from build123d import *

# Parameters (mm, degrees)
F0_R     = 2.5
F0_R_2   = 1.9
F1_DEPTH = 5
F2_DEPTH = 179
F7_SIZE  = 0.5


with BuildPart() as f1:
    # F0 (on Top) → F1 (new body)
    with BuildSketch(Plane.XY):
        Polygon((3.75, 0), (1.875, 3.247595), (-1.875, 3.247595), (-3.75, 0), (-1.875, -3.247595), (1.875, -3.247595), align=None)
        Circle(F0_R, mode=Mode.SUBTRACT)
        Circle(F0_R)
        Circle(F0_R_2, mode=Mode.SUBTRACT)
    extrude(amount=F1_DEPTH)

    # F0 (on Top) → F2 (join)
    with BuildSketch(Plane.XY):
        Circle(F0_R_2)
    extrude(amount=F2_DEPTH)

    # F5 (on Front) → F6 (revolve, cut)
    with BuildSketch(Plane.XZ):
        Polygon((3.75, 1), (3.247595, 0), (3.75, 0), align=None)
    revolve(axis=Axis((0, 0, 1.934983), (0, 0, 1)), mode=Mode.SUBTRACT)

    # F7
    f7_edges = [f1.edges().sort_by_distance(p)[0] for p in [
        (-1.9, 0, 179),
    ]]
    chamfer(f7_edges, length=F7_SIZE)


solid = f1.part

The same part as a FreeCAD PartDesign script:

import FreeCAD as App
import Part
import Sketcher

V = App.Vector
Q = App.Units.Quantity


def edges_at(feature, points):
    """Names of the edges that pass closest to the given points."""
    edges = feature.Shape.Edges
    near = lambda p: min(range(len(edges)), key=lambda i: edges[i].distToShape(Part.Vertex(*p))[0])
    return sorted({f"Edge{near(p) + 1}" for p in points})


def add_polygon(sketch, points):
    """Adds a closed chain of lines whose ends are joined by coincident constraints."""
    first, n = sketch.GeometryCount, len(points)
    for a, b in zip(points, points[1:] + points[:1]):
        sketch.addGeometry(Part.LineSegment(App.Vector(*a, 0), App.Vector(*b, 0)), False)
    for i in range(n):
        sketch.addConstraint(Sketcher.Constraint("Coincident", first + i, 2, first + (i + 1) % n, 1))

doc = App.newDocument("Part")
body = doc.addObject("PartDesign::Body", "Body")

# Sketch on XY plane
sketch1 = doc.addObject("Sketcher::SketchObject", "Sketch")
body.addObject(sketch1)
sketch1.AttachmentSupport = (doc.XY_Plane, [""])
sketch1.MapMode = "FlatFace"
add_polygon(sketch1, [(3.8, 0), (1.9, 3.2), (-1.9, 3.2), (-3.8, 0), (-1.9, -3.2), (1.9, -3.2)])  # lines 0-5
sketch1.addGeometry(Part.Circle(V(0, 0, 0), V(0, 0, 1), 1.9), False)  # 6
sketch1.addConstraint([
    Sketcher.Constraint("Horizontal", 1),
    Sketcher.Constraint("Horizontal", 4),
    Sketcher.Constraint("Coincident", 6, 3, -1, 1),
    Sketcher.Constraint("Symmetric", 0, 2, 3, 2, -1, 1),
    Sketcher.Constraint("Symmetric", 2, 2, 5, 2, -1, 1),
    Sketcher.Constraint("PointOnObject", 2, 2, -1),
    Sketcher.Constraint("Parallel", 2, 5),
    Sketcher.Constraint("Vertical", 1, 2, 3, 2),
    Sketcher.Constraint("Diameter", 6, Q("3.8 mm")),
    Sketcher.Constraint("Angle", 0, Q("120.000002 deg")),
    Sketcher.Constraint("DistanceX", 1, 2, 1, 1, Q("3.75 mm")),
    Sketcher.Constraint("Distance", 0, Q("3.75 mm")),
])
pad1 = doc.addObject("PartDesign::Pad", "Pad")
body.addObject(pad1)
pad1.Profile = sketch1
pad1.Length = 5

# Sketch on XY plane
sketch2 = doc.addObject("Sketcher::SketchObject", "Sketch001")
body.addObject(sketch2)
sketch2.AttachmentSupport = (doc.XY_Plane, [""])
sketch2.MapMode = "FlatFace"
sketch2.addGeometry(Part.Circle(V(0, 0, 0), V(0, 0, 1), 1.9), False)
sketch2.addConstraint([
    Sketcher.Constraint("Coincident", 0, 3, -1, 1),
    Sketcher.Constraint("Diameter", 0, Q("3.8 mm")),
])
pad2 = doc.addObject("PartDesign::Pad", "Pad001")
body.addObject(pad2)
pad2.Profile = sketch2
pad2.Length = 179

# Sketch on XZ plane
sketch3 = doc.addObject("Sketcher::SketchObject", "Sketch002")
body.addObject(sketch3)
sketch3.AttachmentSupport = (doc.XZ_Plane, [""])
sketch3.MapMode = "FlatFace"
add_polygon(sketch3, [(3.8, 1), (3.2, 0), (3.8, 0)])  # lines 0-2
sketch3.addConstraint([
    Sketcher.Constraint("Horizontal", 1),
    Sketcher.Constraint("Vertical", 2),
    Sketcher.Constraint("PointOnObject", 0, 2, -1),
    Sketcher.Constraint("DistanceY", 2, 1, 2, 2, Q("1 mm")),
    Sketcher.Constraint("DistanceX", -1, 1, 1, 2, Q("3.75 mm")),
    Sketcher.Constraint("Distance", 0, Q("1.119112 mm")),
])
groove = doc.addObject("PartDesign::Groove", "Groove")
body.addObject(groove)
groove.Profile = sketch3
groove.ReferenceAxis = (sketch3, ["V_Axis"])
groove.Angle = 360
doc.recompute()

chamfer = doc.addObject("PartDesign::Chamfer", "Chamfer")
body.addObject(chamfer)
chamfer.Base = (groove, edges_at(groove, [(-1.9, 0, 179)]))
chamfer.Size = 0.5

doc.recompute()
